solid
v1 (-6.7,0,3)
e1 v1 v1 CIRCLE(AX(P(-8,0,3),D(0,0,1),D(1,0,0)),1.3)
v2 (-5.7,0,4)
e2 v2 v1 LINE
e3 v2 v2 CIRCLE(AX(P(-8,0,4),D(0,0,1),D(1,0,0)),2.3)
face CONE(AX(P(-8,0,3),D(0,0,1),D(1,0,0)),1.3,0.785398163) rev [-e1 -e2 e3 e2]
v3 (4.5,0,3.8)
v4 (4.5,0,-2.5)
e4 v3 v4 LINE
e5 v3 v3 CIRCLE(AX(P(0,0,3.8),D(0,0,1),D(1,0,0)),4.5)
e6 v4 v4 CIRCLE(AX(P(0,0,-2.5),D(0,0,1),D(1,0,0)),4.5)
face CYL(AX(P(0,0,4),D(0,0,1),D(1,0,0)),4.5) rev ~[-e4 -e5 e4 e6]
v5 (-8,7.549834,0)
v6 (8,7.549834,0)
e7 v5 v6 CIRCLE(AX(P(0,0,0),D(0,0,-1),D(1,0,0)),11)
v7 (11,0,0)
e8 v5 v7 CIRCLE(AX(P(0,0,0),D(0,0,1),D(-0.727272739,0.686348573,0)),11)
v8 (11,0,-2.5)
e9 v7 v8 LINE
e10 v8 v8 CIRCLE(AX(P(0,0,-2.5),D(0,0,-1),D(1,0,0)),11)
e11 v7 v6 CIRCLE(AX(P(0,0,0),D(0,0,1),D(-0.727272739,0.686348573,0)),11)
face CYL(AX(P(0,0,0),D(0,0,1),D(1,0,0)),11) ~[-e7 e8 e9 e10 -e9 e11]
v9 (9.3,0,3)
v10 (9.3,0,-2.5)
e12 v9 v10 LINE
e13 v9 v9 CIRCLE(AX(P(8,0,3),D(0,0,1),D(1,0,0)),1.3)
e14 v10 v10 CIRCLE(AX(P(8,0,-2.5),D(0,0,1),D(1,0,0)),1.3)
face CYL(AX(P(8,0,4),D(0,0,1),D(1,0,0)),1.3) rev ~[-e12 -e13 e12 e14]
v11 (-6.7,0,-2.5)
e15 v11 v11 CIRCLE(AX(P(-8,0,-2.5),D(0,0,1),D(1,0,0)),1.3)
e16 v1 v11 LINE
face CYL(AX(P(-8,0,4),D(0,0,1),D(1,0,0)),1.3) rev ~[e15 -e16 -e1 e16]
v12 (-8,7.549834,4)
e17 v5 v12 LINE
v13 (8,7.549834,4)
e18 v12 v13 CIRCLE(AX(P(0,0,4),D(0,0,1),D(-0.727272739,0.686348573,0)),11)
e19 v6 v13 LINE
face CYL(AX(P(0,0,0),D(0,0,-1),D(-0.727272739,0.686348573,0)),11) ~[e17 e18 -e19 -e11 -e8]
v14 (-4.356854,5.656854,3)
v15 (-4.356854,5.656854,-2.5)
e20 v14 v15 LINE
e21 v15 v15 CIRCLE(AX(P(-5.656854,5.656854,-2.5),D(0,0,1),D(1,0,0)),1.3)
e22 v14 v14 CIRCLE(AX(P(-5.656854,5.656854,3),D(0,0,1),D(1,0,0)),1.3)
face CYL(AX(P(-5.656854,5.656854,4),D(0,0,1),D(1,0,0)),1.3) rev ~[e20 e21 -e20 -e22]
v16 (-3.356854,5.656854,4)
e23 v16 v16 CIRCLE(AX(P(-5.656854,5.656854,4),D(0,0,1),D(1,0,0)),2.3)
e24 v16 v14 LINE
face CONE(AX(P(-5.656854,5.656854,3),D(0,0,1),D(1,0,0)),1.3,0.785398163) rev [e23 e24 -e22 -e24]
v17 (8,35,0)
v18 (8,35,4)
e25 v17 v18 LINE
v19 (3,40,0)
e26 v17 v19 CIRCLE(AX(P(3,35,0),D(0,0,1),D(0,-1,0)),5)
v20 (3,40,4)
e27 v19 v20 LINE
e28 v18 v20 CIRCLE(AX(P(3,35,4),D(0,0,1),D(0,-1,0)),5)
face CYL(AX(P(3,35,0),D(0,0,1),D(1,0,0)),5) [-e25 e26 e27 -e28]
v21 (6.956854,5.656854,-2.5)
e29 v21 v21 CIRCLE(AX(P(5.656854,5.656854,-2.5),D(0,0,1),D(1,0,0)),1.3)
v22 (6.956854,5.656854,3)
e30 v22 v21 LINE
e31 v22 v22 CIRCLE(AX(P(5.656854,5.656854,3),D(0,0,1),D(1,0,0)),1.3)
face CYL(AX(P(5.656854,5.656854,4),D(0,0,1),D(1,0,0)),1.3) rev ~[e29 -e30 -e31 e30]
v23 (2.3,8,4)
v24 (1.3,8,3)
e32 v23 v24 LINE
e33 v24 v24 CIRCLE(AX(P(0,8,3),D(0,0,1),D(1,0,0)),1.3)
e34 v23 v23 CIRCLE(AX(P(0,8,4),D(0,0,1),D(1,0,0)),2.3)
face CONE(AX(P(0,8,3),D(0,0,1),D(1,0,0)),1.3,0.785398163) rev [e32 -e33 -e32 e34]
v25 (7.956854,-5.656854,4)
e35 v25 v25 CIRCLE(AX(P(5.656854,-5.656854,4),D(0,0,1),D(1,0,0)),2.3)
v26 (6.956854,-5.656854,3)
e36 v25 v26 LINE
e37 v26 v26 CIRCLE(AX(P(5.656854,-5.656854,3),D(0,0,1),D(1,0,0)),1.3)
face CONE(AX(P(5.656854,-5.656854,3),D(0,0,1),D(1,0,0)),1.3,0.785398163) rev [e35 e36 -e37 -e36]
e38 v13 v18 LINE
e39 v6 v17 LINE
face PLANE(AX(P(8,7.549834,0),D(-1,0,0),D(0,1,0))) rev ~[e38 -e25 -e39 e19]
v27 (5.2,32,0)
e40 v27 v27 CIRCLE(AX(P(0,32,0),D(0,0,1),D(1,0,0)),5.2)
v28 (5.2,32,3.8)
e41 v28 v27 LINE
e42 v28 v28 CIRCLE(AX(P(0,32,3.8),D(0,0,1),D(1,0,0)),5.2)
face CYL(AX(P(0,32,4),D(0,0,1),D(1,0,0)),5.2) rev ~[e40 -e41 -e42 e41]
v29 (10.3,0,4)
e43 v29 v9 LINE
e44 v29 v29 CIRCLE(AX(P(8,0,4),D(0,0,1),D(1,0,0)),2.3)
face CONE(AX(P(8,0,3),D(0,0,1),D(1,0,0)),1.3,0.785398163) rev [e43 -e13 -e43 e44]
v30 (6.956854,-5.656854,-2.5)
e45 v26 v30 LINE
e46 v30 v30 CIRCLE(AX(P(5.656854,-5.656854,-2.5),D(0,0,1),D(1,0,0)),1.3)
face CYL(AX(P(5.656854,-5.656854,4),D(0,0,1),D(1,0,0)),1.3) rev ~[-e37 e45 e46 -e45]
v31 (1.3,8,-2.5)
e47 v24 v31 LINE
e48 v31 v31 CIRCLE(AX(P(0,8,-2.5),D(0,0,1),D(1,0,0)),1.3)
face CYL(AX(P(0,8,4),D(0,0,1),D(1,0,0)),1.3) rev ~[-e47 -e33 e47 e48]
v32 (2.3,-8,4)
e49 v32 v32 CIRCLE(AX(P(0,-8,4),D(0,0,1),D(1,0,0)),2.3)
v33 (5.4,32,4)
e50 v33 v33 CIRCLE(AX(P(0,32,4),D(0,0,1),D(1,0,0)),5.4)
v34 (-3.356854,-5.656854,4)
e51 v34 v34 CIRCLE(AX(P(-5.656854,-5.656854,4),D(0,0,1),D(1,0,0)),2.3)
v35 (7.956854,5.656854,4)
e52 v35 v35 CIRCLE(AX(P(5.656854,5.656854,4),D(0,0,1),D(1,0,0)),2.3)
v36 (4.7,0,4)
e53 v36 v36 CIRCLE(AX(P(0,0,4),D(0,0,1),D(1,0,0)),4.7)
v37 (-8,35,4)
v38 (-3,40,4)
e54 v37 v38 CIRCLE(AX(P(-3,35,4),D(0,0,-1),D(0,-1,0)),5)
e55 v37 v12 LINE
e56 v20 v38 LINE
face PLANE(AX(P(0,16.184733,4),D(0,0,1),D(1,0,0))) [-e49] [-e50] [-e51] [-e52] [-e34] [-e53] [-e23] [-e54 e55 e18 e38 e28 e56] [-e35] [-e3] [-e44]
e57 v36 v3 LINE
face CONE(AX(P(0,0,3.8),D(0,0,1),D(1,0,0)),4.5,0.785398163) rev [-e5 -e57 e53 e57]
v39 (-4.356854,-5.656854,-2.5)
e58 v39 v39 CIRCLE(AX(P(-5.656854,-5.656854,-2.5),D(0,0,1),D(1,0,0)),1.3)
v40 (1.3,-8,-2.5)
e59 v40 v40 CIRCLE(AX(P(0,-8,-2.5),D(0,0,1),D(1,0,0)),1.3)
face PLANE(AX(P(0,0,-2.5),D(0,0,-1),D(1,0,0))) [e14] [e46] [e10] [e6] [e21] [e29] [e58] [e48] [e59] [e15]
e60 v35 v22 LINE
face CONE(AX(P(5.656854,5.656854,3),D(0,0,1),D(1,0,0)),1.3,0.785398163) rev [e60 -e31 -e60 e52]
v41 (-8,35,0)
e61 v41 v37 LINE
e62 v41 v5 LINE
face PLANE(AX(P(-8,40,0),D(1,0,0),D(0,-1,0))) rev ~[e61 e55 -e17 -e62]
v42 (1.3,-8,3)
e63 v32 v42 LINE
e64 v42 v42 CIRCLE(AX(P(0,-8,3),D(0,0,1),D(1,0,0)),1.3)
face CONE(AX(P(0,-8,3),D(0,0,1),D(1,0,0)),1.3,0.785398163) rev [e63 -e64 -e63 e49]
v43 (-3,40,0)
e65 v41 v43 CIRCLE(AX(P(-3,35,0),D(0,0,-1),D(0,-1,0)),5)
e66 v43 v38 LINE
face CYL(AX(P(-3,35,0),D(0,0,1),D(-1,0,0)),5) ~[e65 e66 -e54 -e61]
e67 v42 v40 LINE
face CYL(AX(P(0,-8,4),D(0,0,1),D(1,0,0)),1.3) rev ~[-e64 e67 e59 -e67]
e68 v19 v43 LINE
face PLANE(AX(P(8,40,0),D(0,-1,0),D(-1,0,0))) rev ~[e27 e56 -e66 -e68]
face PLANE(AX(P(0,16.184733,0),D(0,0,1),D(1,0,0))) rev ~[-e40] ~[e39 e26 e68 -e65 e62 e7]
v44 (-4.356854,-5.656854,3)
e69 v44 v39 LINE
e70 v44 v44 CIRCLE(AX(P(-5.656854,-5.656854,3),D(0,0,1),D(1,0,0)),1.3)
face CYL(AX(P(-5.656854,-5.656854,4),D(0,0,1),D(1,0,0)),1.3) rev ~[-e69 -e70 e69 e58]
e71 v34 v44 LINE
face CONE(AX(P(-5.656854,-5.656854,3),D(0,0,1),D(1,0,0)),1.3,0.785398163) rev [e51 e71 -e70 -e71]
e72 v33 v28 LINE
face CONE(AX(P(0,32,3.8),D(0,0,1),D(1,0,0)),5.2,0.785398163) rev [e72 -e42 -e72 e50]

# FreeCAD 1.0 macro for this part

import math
import FreeCAD as App
import Part
import Sketcher

V = App.Vector
Q = App.Units.Quantity


def edges_at(feature, points):
    """Names of the edges that pass closest to the given points."""
    edges = feature.Shape.Edges
    near = lambda p: min(range(len(edges)), key=lambda i: edges[i].distToShape(Part.Vertex(*p))[0])
    return sorted({f"Edge{near(p) + 1}" for p in points})

doc = App.newDocument("Part")
body = doc.addObject("PartDesign::Body", "Body")

sketch1 = body.newObject("Sketcher::SketchObject", "Sketch")
sketch1.AttachmentSupport = (doc.getObject("XY_Plane"), [""])
sketch1.MapMode = "FlatFace"
sketch1.addGeometry(Part.ArcOfCircle(Part.Circle(V(0, 0, 0), V(0, 0, 1), 11), math.radians(136.658243), math.radians(403.341757)), False)
sketch1.addGeometry(Part.LineSegment(V(8, 7.549834, 0), V(8, 40, 0)), False)
sketch1.addGeometry(Part.LineSegment(V(8, 40, 0), V(-8, 40, 0)), False)
sketch1.addGeometry(Part.LineSegment(V(-8, 40, 0), V(-8, 7.549834, 0)), False)
sketch1.addConstraint(Sketcher.Constraint("Coincident", 0, 2, 1, 1))
sketch1.addConstraint(Sketcher.Constraint("Coincident", 1, 2, 2, 1))
sketch1.addConstraint(Sketcher.Constraint("Coincident", 2, 2, 3, 1))
sketch1.addConstraint(Sketcher.Constraint("Coincident", 3, 2, 0, 1))
sketch1.addConstraint(Sketcher.Constraint("Vertical", 1))
sketch1.addConstraint(Sketcher.Constraint("Horizontal", 2))
sketch1.addConstraint(Sketcher.Constraint("Vertical", 3))
sketch1.addConstraint(Sketcher.Constraint("Coincident", 0, 3, -1, 1))
sketch1.addConstraint(Sketcher.Constraint("Horizontal", 0, 2, 3, 2))
sketch1.addConstraint(Sketcher.Constraint("Radius", 0, Q("11 mm")))
sketch1.addConstraint(Sketcher.Constraint("DistanceX", 2, 2, 2, 1, Q("16 mm")))
sketch1.addConstraint(Sketcher.Constraint("DistanceY", -1, 1, 1, 2, Q("40 mm")))
pad1 = body.newObject("PartDesign::Pad", "Pad")
pad1.Profile = sketch1
pad1.Length = 4

sketch2 = body.newObject("Sketcher::SketchObject", "Sketch001")
sketch2.AttachmentSupport = (doc.getObject("XY_Plane"), [""])
sketch2.MapMode = "FlatFace"
sketch2.AttachmentOffset = App.Placement(V(0, 0, 4), App.Rotation())
sketch2.addGeometry(Part.Circle(V(0, 32, 0), V(0, 0, 1), 5.2), False)
sketch2.addConstraint(Sketcher.Constraint("PointOnObject", 0, 3, -2))
sketch2.addConstraint(Sketcher.Constraint("Diameter", 0, Q("10.4 mm")))
sketch2.addConstraint(Sketcher.Constraint("DistanceY", -1, 1, 0, 3, Q("32 mm")))
pocket1 = body.newObject("PartDesign::Pocket", "Pocket")
pocket1.Profile = sketch2
pocket1.Length = 5
doc.recompute()

fillet = body.newObject("PartDesign::Fillet", "Fillet")
fillet.Base = (pocket1, edges_at(pocket1, [(-8, 40, 2), (8, 40, 2)]))
fillet.Radius = 5

sketch3 = body.newObject("Sketcher::SketchObject", "Sketch002")
sketch3.AttachmentSupport = (doc.getObject("XY_Plane"), [""])
sketch3.MapMode = "FlatFace"
sketch3.addGeometry(Part.Circle(V(0, 0, 0), V(0, 0, 1), 11), False)
sketch3.addConstraint(Sketcher.Constraint("Coincident", 0, 3, -1, 1))
sketch3.addConstraint(Sketcher.Constraint("Diameter", 0, Q("22 mm")))
pad2 = body.newObject("PartDesign::Pad", "Pad001")
pad2.Profile = sketch3
pad2.Length = 2.5
pad2.Reversed = True

sketch4 = body.newObject("Sketcher::SketchObject", "Sketch003")
sketch4.AttachmentSupport = (doc.getObject("XY_Plane"), [""])
sketch4.MapMode = "FlatFace"
sketch4.AttachmentOffset = App.Placement(V(0, 0, 4), App.Rotation())
sketch4.addGeometry(Part.Circle(V(0, 0, 0), V(0, 0, 1), 4.5), False)
sketch4.addGeometry(Part.Circle(V(0, 8, 0), V(0, 0, 1), 1.3), False)
sketch4.addGeometry(Part.Circle(V(5.656854, 5.656854, 0), V(0, 0, 1), 1.3), False)
sketch4.addGeometry(Part.Circle(V(8, 0, 0), V(0, 0, 1), 1.3), False)
sketch4.addGeometry(Part.Circle(V(5.656854, -5.656854, 0), V(0, 0, 1), 1.3), False)
sketch4.addGeometry(Part.Circle(V(0, -8, 0), V(0, 0, 1), 1.3), False)
sketch4.addGeometry(Part.Circle(V(-5.656854, -5.656854, 0), V(0, 0, 1), 1.3), False)
sketch4.addGeometry(Part.Circle(V(-8, 0, 0), V(0, 0, 1), 1.3), False)
sketch4.addGeometry(Part.Circle(V(-5.656854, 5.656854, 0), V(0, 0, 1), 1.3), False)
sketch4.addConstraint(Sketcher.Constraint("Coincident", 0, 3, -1, 1))
sketch4.addConstraint(Sketcher.Constraint("Equal", 1, 2))
sketch4.addConstraint(Sketcher.Constraint("Equal", 2, 3))
sketch4.addConstraint(Sketcher.Constraint("Equal", 3, 4))
sketch4.addConstraint(Sketcher.Constraint("Equal", 4, 5))
sketch4.addConstraint(Sketcher.Constraint("Equal", 5, 6))
sketch4.addConstraint(Sketcher.Constraint("Equal", 6, 7))
sketch4.addConstraint(Sketcher.Constraint("Equal", 7, 8))
sketch4.addConstraint(Sketcher.Constraint("Symmetric", 1, 3, 5, 3, -1, 1))
sketch4.addConstraint(Sketcher.Constraint("Symmetric", 2, 3, 6, 3, -1, 1))
sketch4.addConstraint(Sketcher.Constraint("Symmetric", 3, 3, 7, 3, -1, 1))
sketch4.addConstraint(Sketcher.Constraint("Symmetric", 4, 3, 8, 3, -1, 1))
sketch4.addConstraint(Sketcher.Constraint("Symmetric", 4, 3, 6, 3, -2))
sketch4.addConstraint(Sketcher.Constraint("PointOnObject", 1, 3, -2))
sketch4.addConstraint(Sketcher.Constraint("PointOnObject", 3, 3, -1))
sketch4.addConstraint(Sketcher.Constraint("Diameter", 0, Q("9 mm")))
sketch4.addConstraint(Sketcher.Constraint("Diameter", 1, Q("2.6 mm")))
sketch4.addConstraint(Sketcher.Constraint("DistanceY", -1, 1, 1, 3, Q("8 mm")))
sketch4.addConstraint(Sketcher.Constraint("DistanceX", -1, 1, 3, 3, Q("8 mm")))
sketch4.addConstraint(Sketcher.Constraint("DistanceX", -1, 1, 2, 3, Q("5.656854 mm")))
sketch4.addConstraint(Sketcher.Constraint("DistanceY", -1, 1, 2, 3, Q("5.656854 mm")))
pocket2 = body.newObject("PartDesign::Pocket", "Pocket001")
pocket2.Profile = sketch4
pocket2.Length = 10
doc.recompute()

chamfer = body.newObject("PartDesign::Chamfer", "Chamfer")
chamfer.Base = (pocket2, edges_at(pocket2, [
    (-6.957, 5.657, 4),
    (-1.3, 8, 4),
    (4.357, 5.657, 4),
    (6.7, 0, 4),
    (4.357, -5.657, 4),
    (-1.3, -8, 4),
    (-6.957, -5.657, 4),
    (-9.3, 0, 4),
]))
chamfer.Size = 1
doc.recompute()

chamfer2 = body.newObject("PartDesign::Chamfer", "Chamfer001")
chamfer2.Base = (chamfer, edges_at(chamfer, [(-5.2, 32, 4), (-4.5, 0, 4)]))
chamfer2.Size = 0.2

doc.recompute()
